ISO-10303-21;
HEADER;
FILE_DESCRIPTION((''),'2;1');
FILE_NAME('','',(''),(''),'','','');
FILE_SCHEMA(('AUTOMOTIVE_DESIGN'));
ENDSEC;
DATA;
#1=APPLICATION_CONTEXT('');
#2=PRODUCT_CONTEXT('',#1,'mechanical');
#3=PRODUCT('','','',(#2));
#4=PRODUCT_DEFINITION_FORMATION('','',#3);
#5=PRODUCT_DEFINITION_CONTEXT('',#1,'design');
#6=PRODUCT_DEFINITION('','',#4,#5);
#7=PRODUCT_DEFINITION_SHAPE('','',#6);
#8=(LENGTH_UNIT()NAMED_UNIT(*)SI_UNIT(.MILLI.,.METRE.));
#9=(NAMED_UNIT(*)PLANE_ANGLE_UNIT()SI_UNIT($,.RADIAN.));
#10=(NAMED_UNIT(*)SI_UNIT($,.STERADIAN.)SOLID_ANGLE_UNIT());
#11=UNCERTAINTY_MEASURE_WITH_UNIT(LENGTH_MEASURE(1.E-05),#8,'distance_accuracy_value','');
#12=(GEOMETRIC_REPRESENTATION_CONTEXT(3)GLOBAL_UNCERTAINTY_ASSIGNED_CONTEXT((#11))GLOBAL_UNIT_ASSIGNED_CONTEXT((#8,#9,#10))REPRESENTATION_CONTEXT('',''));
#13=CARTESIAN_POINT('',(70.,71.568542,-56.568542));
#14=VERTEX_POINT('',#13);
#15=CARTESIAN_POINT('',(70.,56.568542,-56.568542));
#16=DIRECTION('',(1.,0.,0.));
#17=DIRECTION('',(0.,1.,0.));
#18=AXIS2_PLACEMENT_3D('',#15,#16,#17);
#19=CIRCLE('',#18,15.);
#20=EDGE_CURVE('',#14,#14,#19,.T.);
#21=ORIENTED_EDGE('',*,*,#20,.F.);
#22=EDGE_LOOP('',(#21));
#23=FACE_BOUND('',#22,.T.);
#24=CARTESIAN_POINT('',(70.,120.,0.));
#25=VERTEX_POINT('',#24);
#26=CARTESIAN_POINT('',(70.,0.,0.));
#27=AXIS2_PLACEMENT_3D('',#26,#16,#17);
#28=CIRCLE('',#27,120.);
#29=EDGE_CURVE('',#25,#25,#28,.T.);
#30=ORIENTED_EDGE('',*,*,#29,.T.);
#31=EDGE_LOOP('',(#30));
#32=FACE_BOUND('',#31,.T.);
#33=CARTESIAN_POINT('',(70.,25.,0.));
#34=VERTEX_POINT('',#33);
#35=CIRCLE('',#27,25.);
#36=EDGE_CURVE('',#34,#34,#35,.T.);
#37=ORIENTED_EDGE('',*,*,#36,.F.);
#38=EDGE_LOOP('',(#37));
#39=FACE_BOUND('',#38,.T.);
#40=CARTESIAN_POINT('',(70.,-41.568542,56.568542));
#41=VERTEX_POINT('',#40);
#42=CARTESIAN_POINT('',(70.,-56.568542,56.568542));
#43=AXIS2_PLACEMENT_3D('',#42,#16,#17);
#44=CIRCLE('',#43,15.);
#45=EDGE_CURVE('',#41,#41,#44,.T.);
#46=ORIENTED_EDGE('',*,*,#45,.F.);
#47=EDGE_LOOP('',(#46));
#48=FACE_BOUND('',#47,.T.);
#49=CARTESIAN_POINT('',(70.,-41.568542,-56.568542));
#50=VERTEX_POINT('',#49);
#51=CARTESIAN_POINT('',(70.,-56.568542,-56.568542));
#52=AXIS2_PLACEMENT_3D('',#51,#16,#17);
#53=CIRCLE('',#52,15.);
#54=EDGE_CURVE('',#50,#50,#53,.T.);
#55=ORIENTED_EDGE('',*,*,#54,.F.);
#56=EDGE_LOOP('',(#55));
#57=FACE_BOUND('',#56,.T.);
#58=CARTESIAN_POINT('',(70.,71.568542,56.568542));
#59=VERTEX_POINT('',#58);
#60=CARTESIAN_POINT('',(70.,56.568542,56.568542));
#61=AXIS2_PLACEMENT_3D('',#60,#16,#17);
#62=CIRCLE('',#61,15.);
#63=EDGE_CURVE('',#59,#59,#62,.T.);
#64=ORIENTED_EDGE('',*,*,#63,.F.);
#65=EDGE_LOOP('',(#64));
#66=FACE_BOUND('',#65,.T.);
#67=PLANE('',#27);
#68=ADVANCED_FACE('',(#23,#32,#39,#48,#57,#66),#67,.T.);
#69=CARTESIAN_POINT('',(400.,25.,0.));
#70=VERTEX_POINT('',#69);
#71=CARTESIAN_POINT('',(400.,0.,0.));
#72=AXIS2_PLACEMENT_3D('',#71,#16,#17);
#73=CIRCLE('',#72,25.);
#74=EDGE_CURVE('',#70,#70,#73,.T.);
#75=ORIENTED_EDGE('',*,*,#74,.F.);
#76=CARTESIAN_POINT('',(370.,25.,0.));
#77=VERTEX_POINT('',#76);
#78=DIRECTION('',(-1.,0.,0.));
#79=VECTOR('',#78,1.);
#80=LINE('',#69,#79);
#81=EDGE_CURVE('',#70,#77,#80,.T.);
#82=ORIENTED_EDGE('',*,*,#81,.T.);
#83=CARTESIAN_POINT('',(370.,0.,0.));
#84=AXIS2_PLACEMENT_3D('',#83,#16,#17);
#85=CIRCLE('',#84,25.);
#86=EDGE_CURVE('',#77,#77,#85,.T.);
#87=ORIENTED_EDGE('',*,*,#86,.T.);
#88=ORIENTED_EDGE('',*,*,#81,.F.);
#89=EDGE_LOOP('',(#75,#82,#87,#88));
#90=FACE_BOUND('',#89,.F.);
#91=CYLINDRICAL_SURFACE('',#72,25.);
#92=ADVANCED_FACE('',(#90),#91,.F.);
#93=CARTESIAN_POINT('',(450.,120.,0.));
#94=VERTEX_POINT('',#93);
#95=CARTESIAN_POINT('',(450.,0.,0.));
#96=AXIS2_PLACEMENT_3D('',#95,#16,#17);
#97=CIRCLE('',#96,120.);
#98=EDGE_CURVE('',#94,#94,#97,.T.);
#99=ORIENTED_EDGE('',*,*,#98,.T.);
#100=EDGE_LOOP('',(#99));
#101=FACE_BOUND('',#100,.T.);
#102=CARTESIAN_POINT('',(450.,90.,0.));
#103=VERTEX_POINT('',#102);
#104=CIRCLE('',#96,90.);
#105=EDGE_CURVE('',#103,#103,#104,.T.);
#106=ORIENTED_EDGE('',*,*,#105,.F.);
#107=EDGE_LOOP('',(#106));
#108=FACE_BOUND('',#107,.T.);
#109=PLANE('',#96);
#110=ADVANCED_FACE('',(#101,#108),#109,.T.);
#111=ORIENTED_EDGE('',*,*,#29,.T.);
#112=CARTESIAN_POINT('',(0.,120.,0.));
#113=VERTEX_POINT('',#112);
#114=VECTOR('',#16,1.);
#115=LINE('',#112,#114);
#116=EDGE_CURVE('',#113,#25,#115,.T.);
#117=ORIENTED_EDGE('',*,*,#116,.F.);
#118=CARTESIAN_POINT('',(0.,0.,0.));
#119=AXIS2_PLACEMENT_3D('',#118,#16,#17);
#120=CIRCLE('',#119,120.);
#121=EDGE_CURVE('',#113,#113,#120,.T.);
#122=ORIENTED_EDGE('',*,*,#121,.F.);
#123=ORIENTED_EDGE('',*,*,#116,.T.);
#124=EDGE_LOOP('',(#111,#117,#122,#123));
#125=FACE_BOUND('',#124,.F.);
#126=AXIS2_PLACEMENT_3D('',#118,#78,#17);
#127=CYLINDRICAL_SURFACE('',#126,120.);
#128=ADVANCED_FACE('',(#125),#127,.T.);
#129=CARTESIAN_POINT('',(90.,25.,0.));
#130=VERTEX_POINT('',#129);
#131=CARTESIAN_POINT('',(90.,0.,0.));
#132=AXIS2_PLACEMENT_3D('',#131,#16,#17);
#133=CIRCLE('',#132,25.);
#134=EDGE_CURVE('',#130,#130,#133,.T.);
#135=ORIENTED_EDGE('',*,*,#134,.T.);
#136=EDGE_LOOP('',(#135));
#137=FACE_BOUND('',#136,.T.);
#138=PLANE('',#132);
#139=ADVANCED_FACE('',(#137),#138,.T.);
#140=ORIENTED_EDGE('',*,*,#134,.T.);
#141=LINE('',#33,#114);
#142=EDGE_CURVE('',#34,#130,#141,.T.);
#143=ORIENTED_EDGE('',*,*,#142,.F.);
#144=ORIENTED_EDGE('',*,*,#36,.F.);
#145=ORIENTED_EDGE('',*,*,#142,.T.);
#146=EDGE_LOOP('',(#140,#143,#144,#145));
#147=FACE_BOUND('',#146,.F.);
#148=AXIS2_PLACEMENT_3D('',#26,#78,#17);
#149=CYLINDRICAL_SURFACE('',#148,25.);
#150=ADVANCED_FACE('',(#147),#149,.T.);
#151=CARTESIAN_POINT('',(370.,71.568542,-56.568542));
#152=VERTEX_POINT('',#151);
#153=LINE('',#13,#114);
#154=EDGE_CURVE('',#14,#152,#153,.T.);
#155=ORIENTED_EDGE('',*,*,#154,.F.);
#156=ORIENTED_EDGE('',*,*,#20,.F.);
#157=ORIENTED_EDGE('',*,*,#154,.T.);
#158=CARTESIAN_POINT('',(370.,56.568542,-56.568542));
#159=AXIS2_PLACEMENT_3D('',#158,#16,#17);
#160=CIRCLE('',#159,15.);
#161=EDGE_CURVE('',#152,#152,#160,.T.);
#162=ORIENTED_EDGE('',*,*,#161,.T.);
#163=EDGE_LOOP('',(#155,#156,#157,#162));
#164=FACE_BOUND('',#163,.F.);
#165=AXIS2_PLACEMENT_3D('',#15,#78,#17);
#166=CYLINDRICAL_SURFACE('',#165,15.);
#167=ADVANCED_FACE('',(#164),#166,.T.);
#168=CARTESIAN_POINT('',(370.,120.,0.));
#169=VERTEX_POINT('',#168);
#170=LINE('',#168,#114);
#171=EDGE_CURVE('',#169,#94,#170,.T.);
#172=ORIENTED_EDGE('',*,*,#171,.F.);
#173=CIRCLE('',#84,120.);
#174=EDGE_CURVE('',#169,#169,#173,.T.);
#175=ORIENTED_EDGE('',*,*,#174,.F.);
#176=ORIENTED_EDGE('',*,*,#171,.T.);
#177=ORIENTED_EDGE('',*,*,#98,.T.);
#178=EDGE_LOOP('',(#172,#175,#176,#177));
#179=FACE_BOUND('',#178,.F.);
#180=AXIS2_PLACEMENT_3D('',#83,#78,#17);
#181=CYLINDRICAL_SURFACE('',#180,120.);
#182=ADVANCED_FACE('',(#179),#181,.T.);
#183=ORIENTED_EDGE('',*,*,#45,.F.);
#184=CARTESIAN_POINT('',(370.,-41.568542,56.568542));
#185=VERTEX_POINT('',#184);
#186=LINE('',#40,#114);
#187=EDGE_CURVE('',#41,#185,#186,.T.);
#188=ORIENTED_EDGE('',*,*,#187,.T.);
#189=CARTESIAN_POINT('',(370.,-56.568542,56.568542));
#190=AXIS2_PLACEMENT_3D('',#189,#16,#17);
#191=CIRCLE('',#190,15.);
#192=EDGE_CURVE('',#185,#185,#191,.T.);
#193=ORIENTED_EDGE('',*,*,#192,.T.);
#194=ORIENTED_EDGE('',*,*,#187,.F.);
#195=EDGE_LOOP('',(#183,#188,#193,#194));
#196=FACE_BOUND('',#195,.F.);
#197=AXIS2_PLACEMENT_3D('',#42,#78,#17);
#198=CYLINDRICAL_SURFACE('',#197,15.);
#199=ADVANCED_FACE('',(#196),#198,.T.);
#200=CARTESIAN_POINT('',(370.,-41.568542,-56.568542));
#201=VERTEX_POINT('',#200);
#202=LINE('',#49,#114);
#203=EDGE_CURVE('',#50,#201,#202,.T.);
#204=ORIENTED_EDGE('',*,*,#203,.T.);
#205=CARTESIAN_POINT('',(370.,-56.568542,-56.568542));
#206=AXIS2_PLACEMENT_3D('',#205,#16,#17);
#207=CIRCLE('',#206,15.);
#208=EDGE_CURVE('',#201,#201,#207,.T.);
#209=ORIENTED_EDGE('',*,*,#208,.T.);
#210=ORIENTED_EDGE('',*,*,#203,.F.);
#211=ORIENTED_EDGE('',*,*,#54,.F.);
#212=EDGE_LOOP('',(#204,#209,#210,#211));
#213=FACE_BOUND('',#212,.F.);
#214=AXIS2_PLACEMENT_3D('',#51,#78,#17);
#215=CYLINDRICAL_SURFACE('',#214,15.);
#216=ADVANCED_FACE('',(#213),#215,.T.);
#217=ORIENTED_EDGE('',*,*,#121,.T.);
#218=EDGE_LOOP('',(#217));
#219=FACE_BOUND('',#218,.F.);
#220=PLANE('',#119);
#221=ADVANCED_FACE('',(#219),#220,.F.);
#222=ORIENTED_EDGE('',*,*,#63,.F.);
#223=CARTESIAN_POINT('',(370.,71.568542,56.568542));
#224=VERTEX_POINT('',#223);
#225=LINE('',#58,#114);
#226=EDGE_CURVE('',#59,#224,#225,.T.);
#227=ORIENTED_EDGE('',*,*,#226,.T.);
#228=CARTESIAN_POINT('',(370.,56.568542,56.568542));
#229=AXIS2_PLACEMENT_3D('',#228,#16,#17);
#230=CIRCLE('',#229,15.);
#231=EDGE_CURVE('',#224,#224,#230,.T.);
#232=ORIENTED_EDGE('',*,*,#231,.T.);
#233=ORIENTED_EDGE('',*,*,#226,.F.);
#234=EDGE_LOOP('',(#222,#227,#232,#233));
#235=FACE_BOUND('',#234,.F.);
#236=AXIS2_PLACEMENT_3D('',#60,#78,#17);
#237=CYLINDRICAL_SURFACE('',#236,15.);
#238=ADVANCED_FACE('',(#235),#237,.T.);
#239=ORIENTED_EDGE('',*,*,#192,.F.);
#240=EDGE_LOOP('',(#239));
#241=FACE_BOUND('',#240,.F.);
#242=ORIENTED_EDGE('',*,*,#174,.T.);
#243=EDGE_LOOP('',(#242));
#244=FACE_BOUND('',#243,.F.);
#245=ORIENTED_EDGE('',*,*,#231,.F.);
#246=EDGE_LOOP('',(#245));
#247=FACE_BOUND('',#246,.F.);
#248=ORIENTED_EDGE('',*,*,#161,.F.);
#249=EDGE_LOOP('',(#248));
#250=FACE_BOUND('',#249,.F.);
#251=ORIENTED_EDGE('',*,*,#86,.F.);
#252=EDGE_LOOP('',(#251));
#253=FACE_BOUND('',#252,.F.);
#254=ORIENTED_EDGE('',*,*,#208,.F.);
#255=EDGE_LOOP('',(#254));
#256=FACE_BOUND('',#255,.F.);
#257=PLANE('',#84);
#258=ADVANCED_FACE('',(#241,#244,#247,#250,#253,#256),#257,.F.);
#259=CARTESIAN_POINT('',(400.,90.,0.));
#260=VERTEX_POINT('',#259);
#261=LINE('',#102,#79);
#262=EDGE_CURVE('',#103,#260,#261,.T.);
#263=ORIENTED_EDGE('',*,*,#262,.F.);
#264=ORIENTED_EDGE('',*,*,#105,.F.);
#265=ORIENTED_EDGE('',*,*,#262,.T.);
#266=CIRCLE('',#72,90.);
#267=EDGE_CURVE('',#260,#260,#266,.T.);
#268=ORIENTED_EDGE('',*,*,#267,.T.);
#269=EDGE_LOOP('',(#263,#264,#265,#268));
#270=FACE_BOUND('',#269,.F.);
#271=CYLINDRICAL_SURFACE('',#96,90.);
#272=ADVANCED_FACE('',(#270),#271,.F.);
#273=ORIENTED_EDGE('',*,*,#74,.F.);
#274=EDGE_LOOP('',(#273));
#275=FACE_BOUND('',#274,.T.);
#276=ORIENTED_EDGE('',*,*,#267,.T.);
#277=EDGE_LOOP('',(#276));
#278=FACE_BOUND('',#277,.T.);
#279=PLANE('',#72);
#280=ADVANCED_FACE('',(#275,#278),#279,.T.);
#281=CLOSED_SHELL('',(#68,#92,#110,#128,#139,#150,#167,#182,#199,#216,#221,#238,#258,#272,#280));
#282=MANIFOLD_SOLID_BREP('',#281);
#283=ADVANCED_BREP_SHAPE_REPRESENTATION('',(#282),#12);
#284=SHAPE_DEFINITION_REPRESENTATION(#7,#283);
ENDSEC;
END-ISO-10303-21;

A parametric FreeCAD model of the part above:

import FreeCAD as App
import Part
import Sketcher

V = App.Vector
Q = App.Units.Quantity

doc = App.newDocument("Part")
params = doc.addObject("Spreadsheet::Sheet", "Params")
for row, (alias, value) in enumerate([
    ("sketch1_diameter", "240 mm"),
    ("pad1_length", "70 mm"),
    ("sketch2_diameter", "50 mm"),
    ("pad2_length", "20 mm"),
    ("sketch3_diameter", "30 mm"),
    ("pad3_length", "300 mm"),
    ("sketch4_diameter", "240 mm"),
    ("pad4_length", "80 mm"),
    ("sketch5_diameter", "180 mm"),
    ("pocket1_length", "50 mm"),
    ("sketch6_diameter", "50 mm"),
    ("pocket2_length", "60 mm"),
], start=1):
    params.set(f"A{row}", alias)
    params.set(f"B{row}", "=" + value)
    params.setAlias(f"B{row}", alias)

body = doc.addObject("PartDesign::Body", "Body")

# Sketch on YZ plane
sketch1 = doc.addObject("Sketcher::SketchObject", "Sketch")
body.addObject(sketch1)
sketch1.AttachmentSupport = (doc.YZ_Plane, [""])
sketch1.MapMode = "FlatFace"
sketch1.addGeometry(Part.Circle(V(0, 0, 0), V(0, 0, 1), 120), False)
sketch1.addConstraint([
    Sketcher.Constraint("Coincident", 0, 3, -1, 1),
    Sketcher.Constraint("Diameter", 0, Q("240 mm")),
])
sketch1.setExpression("Constraints[1]", "Params.sketch1_diameter")
pad1 = doc.addObject("PartDesign::Pad", "Pad")
body.addObject(pad1)
pad1.Profile = sketch1
pad1.setExpression("Length", "Params.pad1_length")

# Sketch on YZ plane
sketch2 = doc.addObject("Sketcher::SketchObject", "Sketch001")
body.addObject(sketch2)
sketch2.AttachmentSupport = (doc.YZ_Plane, [""])
sketch2.MapMode = "FlatFace"
sketch2.AttachmentOffset = App.Placement(V(0, 0, 70), App.Rotation())
sketch2.addGeometry(Part.Circle(V(0, 0, 0), V(0, 0, 1), 25), False)
sketch2.addConstraint([
    Sketcher.Constraint("Coincident", 0, 3, -1, 1),
    Sketcher.Constraint("Diameter", 0, Q("50 mm")),
])
sketch2.setExpression("Constraints[1]", "Params.sketch2_diameter")
pad2 = doc.addObject("PartDesign::Pad", "Pad001")
body.addObject(pad2)
pad2.Profile = sketch2
pad2.setExpression("Length", "Params.pad2_length")

# Sketch on YZ plane
sketch3 = doc.addObject("Sketcher::SketchObject", "Sketch002")
body.addObject(sketch3)
sketch3.AttachmentSupport = (doc.YZ_Plane, [""])
sketch3.MapMode = "FlatFace"
sketch3.AttachmentOffset = App.Placement(V(0, 0, 70), App.Rotation())
sketch3.addGeometry([
    Part.Circle(V(-57, -57, 0), V(0, 0, 1), 15),
    Part.Circle(V(-57, 57, 0), V(0, 0, 1), 15),
    Part.Circle(V(57, 57, 0), V(0, 0, 1), 15),
    Part.Circle(V(57, -57, 0), V(0, 0, 1), 15),
], False)
sketch3.addConstraint([
    Sketcher.Constraint("Equal", 0, 1),
    Sketcher.Constraint("Equal", 1, 2),
    Sketcher.Constraint("Equal", 2, 3),
    Sketcher.Constraint("Symmetric", 0, 3, 2, 3, -1, 1),
    Sketcher.Constraint("Symmetric", 1, 3, 3, 3, -1, 1),
    Sketcher.Constraint("Symmetric", 1, 3, 2, 3, -2),
    Sketcher.Constraint("Diameter", 0, Q("30 mm")),
    Sketcher.Constraint("DistanceX", 0, 3, -1, 1, Q("56.568542 mm")),
    Sketcher.Constraint("DistanceY", 0, 3, -1, 1, Q("56.568542 mm")),
])
sketch3.setExpression("Constraints[6]", "Params.sketch3_diameter")
pad3 = doc.addObject("PartDesign::Pad", "Pad002")
body.addObject(pad3)
pad3.Profile = sketch3
pad3.setExpression("Length", "Params.pad3_length")

# Sketch on YZ plane
sketch4 = doc.addObject("Sketcher::SketchObject", "Sketch003")
body.addObject(sketch4)
sketch4.AttachmentSupport = (doc.YZ_Plane, [""])
sketch4.MapMode = "FlatFace"
sketch4.AttachmentOffset = App.Placement(V(0, 0, 370), App.Rotation())
sketch4.addGeometry(Part.Circle(V(0, 0, 0), V(0, 0, 1), 120), False)
sketch4.addConstraint([
    Sketcher.Constraint("Coincident", 0, 3, -1, 1),
    Sketcher.Constraint("Diameter", 0, Q("240 mm")),
])
sketch4.setExpression("Constraints[1]", "Params.sketch4_diameter")
pad4 = doc.addObject("PartDesign::Pad", "Pad003")
body.addObject(pad4)
pad4.Profile = sketch4
pad4.setExpression("Length", "Params.pad4_length")

# Sketch on YZ plane
sketch5 = doc.addObject("Sketcher::SketchObject", "Sketch004")
body.addObject(sketch5)
sketch5.AttachmentSupport = (doc.YZ_Plane, [""])
sketch5.MapMode = "FlatFace"
sketch5.AttachmentOffset = App.Placement(V(0, 0, 450), App.Rotation())
sketch5.addGeometry(Part.Circle(V(0, 0, 0), V(0, 0, 1), 90), False)
sketch5.addConstraint([
    Sketcher.Constraint("Coincident", 0, 3, -1, 1),
    Sketcher.Constraint("Diameter", 0, Q("180 mm")),
])
sketch5.setExpression("Constraints[1]", "Params.sketch5_diameter")
pocket1 = doc.addObject("PartDesign::Pocket", "Pocket")
body.addObject(pocket1)
pocket1.Profile = sketch5
pocket1.setExpression("Length", "Params.pocket1_length")

# Sketch on YZ plane
sketch6 = doc.addObject("Sketcher::SketchObject", "Sketch005")
body.addObject(sketch6)
sketch6.AttachmentSupport = (doc.YZ_Plane, [""])
sketch6.MapMode = "FlatFace"
sketch6.AttachmentOffset = App.Placement(V(0, 0, 400), App.Rotation())
sketch6.addGeometry(Part.Circle(V(0, 0, 0), V(0, 0, 1), 25), False)
sketch6.addConstraint([
    Sketcher.Constraint("Coincident", 0, 3, -1, 1),
    Sketcher.Constraint("Diameter", 0, Q("50 mm")),
])
sketch6.setExpression("Constraints[1]", "Params.sketch6_diameter")
pocket2 = doc.addObject("PartDesign::Pocket", "Pocket001")
body.addObject(pocket2)
pocket2.Profile = sketch6
pocket2.setExpression("Length", "Params.pocket2_length")

doc.recompute()
